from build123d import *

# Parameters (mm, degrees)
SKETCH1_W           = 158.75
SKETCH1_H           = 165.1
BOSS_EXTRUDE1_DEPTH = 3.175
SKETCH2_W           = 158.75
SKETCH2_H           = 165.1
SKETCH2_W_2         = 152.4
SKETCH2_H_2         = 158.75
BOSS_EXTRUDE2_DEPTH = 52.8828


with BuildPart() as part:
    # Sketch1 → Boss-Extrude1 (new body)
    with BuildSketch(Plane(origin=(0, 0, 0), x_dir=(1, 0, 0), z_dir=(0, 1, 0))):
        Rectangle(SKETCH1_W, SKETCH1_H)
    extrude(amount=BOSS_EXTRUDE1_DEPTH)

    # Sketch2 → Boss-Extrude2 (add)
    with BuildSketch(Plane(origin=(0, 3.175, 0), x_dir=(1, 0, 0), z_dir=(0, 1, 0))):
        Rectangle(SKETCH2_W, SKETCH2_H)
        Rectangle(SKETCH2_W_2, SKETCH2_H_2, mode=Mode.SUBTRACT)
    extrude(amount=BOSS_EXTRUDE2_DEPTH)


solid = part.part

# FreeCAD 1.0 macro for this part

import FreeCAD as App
import Part
import Sketcher

V = App.Vector
Q = App.Units.Quantity


def add_polygon(sketch, points):
    """Adds a closed chain of lines whose ends are joined by coincident constraints."""
    first, n = sketch.GeometryCount, len(points)
    for a, b in zip(points, points[1:] + points[:1]):
        sketch.addGeometry(Part.LineSegment(App.Vector(*a, 0), App.Vector(*b, 0)), False)
    for i in range(n):
        sketch.addConstraint(Sketcher.Constraint("Coincident", first + i, 2, first + (i + 1) % n, 1))

doc = App.newDocument("Part")
body = doc.addObject("PartDesign::Body", "Body")

sketch1 = doc.addObject("Sketcher::SketchObject", "Sketch")
body.addObject(sketch1)
sketch1.AttachmentSupport = (doc.XZ_Plane, [""])
sketch1.MapMode = "FlatFace"
add_polygon(sketch1, [(-79, -83), (-79, 83), (79, 83), (79, -83)])
sketch1.addConstraint(Sketcher.Constraint("Vertical", 0))
sketch1.addConstraint(Sketcher.Constraint("Horizontal", 1))
sketch1.addConstraint(Sketcher.Constraint("Vertical", 2))
sketch1.addConstraint(Sketcher.Constraint("Horizontal", 3))
sketch1.addConstraint(Sketcher.Constraint("Symmetric", 0, 2, 2, 2, -1, 1))
sketch1.addConstraint(Sketcher.Constraint("DistanceY", 0, 1, 0, 2, Q("6.5 in")))
sketch1.addConstraint(Sketcher.Constraint("DistanceX", 1, 1, 1, 2, Q("6.25 in")))
pad1 = doc.addObject("PartDesign::Pad", "Pad")
body.addObject(pad1)
pad1.Profile = sketch1
pad1.Length = Q("0.125 in")
pad1.Reversed = True

sketch2 = doc.addObject("Sketcher::SketchObject", "Sketch001")
body.addObject(sketch2)
sketch2.AttachmentSupport = (doc.XZ_Plane, [""])
sketch2.MapMode = "FlatFace"
sketch2.AttachmentOffset = App.Placement(V(0, 0, -0.125 * 25.4), App.Rotation())
add_polygon(sketch2, [(-79, -83), (-79, 83), (79, 83), (79, -83)])
add_polygon(sketch2, [(76, 79), (-76, 79), (-76, -79), (76, -79)])
sketch2.addConstraint(Sketcher.Constraint("Vertical", 0))
sketch2.addConstraint(Sketcher.Constraint("Horizontal", 1))
sketch2.addConstraint(Sketcher.Constraint("Vertical", 2))
sketch2.addConstraint(Sketcher.Constraint("Horizontal", 3))
sketch2.addConstraint(Sketcher.Constraint("Horizontal", 4))
sketch2.addConstraint(Sketcher.Constraint("Vertical", 5))
sketch2.addConstraint(Sketcher.Constraint("Horizontal", 6))
sketch2.addConstraint(Sketcher.Constraint("Vertical", 7))
sketch2.addConstraint(Sketcher.Constraint("Symmetric", 0, 2, 2, 2, -1, 1))
sketch2.addConstraint(Sketcher.Constraint("Symmetric", 4, 2, 6, 2, -1, 1))
sketch2.addConstraint(Sketcher.Constraint("Equal", 3, 5))
sketch2.addConstraint(Sketcher.Constraint("DistanceX", 4, 2, 4, 1, Q("6 in")))
sketch2.addConstraint(Sketcher.Constraint("DistanceY", 0, 1, 0, 2, Q("6.5 in")))
sketch2.addConstraint(Sketcher.Constraint("DistanceX", 1, 1, 1, 2, Q("6.25 in")))
pad2 = doc.addObject("PartDesign::Pad", "Pad001")
body.addObject(pad2)
pad2.Profile = sketch2
pad2.Length = Q("2.082 in")
pad2.Reversed = True

doc.recompute()
